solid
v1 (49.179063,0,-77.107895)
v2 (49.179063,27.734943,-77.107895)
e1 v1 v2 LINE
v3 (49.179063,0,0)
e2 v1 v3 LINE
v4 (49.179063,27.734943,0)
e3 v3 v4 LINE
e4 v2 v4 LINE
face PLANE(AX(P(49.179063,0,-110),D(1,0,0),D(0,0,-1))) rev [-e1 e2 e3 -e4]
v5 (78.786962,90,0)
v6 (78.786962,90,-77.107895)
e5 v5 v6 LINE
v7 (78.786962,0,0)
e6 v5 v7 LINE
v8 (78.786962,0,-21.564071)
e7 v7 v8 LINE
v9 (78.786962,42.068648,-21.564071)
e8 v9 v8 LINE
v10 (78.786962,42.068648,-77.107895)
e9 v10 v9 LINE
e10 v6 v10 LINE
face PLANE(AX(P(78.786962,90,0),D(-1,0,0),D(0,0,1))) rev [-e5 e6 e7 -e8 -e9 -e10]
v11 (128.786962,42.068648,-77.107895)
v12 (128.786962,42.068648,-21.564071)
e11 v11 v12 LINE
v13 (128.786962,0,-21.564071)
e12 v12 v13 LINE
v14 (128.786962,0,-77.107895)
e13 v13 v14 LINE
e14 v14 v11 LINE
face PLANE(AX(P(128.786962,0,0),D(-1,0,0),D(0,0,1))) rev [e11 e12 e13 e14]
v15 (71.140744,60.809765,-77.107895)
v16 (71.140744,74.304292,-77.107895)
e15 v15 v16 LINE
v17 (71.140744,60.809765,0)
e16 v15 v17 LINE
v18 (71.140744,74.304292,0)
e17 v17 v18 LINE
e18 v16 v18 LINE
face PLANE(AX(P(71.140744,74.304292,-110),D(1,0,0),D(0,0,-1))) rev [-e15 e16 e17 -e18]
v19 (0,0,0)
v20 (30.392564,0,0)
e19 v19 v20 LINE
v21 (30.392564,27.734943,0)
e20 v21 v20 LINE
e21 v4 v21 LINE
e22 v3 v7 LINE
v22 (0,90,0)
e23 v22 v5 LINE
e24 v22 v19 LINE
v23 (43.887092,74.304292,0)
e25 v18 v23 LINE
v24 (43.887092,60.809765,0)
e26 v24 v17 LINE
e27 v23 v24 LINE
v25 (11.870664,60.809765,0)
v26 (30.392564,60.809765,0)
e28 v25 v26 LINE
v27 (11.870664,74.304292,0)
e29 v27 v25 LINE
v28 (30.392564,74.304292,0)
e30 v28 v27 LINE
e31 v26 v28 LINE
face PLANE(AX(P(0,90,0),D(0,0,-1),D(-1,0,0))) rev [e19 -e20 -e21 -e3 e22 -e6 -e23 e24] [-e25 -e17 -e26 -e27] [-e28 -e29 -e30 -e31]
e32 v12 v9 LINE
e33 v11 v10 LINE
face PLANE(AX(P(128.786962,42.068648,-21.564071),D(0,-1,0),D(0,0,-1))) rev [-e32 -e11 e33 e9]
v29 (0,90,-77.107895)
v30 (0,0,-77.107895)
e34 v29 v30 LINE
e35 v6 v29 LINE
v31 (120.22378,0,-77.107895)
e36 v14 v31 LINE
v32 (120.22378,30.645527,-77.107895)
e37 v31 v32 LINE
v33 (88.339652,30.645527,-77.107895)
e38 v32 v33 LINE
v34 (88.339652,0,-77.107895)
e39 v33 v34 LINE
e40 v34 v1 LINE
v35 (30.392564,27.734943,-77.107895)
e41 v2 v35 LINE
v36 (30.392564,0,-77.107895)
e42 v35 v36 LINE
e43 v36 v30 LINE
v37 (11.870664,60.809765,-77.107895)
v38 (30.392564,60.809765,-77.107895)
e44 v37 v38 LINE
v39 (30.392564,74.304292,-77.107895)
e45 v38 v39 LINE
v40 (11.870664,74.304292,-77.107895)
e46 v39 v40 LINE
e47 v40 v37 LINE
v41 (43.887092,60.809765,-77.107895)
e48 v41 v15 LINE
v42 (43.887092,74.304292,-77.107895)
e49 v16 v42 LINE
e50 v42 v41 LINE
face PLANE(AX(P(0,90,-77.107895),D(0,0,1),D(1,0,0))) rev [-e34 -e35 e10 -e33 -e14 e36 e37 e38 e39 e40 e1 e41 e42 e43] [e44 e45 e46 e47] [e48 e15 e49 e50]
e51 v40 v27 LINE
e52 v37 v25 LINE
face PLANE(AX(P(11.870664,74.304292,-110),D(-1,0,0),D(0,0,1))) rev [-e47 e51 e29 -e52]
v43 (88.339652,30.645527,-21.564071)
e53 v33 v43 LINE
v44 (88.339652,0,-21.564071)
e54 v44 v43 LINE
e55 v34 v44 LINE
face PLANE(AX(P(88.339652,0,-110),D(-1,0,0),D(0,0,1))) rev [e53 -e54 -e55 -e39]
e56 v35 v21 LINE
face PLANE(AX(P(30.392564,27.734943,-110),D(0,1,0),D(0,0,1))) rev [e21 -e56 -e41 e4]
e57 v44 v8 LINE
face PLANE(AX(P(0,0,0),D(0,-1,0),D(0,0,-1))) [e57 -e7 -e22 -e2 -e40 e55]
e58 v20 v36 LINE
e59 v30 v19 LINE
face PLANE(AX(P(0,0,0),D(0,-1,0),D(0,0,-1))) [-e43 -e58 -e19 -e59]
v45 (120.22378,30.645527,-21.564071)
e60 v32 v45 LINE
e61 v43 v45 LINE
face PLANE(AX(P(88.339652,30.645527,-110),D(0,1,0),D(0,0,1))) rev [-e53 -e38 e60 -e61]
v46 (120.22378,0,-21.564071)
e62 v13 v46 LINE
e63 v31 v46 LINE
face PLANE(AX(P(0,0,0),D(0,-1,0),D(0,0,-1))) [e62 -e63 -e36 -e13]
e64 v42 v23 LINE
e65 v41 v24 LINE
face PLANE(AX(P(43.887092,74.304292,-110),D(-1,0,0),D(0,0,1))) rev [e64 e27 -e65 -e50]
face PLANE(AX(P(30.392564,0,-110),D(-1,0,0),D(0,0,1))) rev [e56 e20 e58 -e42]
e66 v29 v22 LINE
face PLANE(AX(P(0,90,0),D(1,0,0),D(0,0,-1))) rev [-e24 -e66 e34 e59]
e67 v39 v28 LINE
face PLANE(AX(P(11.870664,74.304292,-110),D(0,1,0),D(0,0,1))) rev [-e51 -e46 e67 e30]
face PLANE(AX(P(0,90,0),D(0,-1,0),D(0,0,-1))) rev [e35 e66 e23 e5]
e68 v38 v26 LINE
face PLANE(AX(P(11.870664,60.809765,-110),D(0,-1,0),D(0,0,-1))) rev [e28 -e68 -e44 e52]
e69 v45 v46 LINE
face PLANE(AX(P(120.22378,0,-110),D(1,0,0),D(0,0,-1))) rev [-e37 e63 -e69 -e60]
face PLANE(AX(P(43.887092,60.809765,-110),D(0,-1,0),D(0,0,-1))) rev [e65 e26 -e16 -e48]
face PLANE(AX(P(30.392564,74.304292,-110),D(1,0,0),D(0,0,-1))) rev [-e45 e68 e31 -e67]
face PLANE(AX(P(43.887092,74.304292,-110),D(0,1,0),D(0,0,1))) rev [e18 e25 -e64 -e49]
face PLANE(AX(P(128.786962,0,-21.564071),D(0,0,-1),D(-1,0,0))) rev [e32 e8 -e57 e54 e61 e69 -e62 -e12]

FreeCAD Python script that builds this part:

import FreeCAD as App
import Part
import Sketcher
Q = App.Units.Quantity

doc = App.newDocument("Part")
params = doc.addObject("Spreadsheet::Sheet", "Params")
for row, (alias, value) in enumerate([
    ("pad1_length", "90 mm"),
    ("pad2_length", "50 mm"),
    ("pocket1_length", "110 mm"),
], start=1):
    params.set(f"A{row}", alias)
    params.set(f"B{row}", "=" + value)
    params.setAlias(f"B{row}", alias)

body = doc.addObject("PartDesign::Body", "Body")

sketch1 = body.newObject("Sketcher::SketchObject", "Sketch")
sketch1.AttachmentSupport = (doc.getObject("XZ_Plane"), [""])
sketch1.MapMode = "FlatFace"
sketch1.addGeometry([
    Part.LineSegment(App.Vector(0, -77, 0), App.Vector(0, 0, 0)),
    Part.LineSegment(App.Vector(0, 0, 0), App.Vector(79, 0, 0)),
    Part.LineSegment(App.Vector(79, 0, 0), App.Vector(79, -77, 0)),
    Part.LineSegment(App.Vector(79, -77, 0), App.Vector(0, -77, 0)),
], False)
sketch1.addConstraint([
    Sketcher.Constraint("Coincident", 0, 2, 1, 1),
    Sketcher.Constraint("Coincident", 1, 2, 2, 1),
    Sketcher.Constraint("Coincident", 2, 2, 3, 1),
    Sketcher.Constraint("Coincident", 3, 2, 0, 1),
    Sketcher.Constraint("Vertical", 0),
    Sketcher.Constraint("Horizontal", 1),
    Sketcher.Constraint("Vertical", 2),
    Sketcher.Constraint("Horizontal", 3),
    Sketcher.Constraint("Coincident", 0, 2, -1, 1),
    Sketcher.Constraint("DistanceX", 1, 1, 1, 2, Q("78.786962 mm")),
    Sketcher.Constraint("DistanceY", 0, 1, 0, 2, Q("77.107895 mm")),
])
pad1 = body.newObject("PartDesign::Pad", "Pad")
pad1.Profile = sketch1
pad1.setExpression("Length", "Params.pad1_length")
pad1.Reversed = True

sketch2 = body.newObject("Sketcher::SketchObject", "Sketch001")
sketch2.AttachmentSupport = (doc.getObject("YZ_Plane"), [""])
sketch2.MapMode = "FlatFace"
sketch2.AttachmentOffset = App.Placement(App.Vector(0, 0, 78.786962), App.Rotation())
sketch2.addGeometry([
    Part.LineSegment(App.Vector(42, -22, 0), App.Vector(0, -22, 0)),
    Part.LineSegment(App.Vector(0, -22, 0), App.Vector(0, -77, 0)),
    Part.LineSegment(App.Vector(0, -77, 0), App.Vector(42, -77, 0)),
    Part.LineSegment(App.Vector(42, -77, 0), App.Vector(42, -22, 0)),
], False)
sketch2.addConstraint([
    Sketcher.Constraint("Coincident", 0, 2, 1, 1),
    Sketcher.Constraint("Coincident", 1, 2, 2, 1),
    Sketcher.Constraint("Coincident", 2, 2, 3, 1),
    Sketcher.Constraint("Coincident", 3, 2, 0, 1),
    Sketcher.Constraint("Horizontal", 0),
    Sketcher.Constraint("Vertical", 1),
    Sketcher.Constraint("Horizontal", 2),
    Sketcher.Constraint("Vertical", 3),
    Sketcher.Constraint("PointOnObject", 0, 2, -2),
    Sketcher.Constraint("DistanceX", 0, 2, 0, 1, Q("42.068648 mm")),
    Sketcher.Constraint("DistanceY", 1, 2, 1, 1, Q("55.543824 mm")),
    Sketcher.Constraint("DistanceY", 0, 2, -1, 1, Q("21.564071 mm")),
])
pad2 = body.newObject("PartDesign::Pad", "Pad001")
pad2.Profile = sketch2
pad2.setExpression("Length", "Params.pad2_length")

sketch3 = body.newObject("Sketcher::SketchObject", "Sketch002")
sketch3.AttachmentSupport = (doc.getObject("XY_Plane"), [""])
sketch3.MapMode = "FlatFace"
sketch3.addGeometry([
    Part.LineSegment(App.Vector(30, 28, 0), App.Vector(30, 0, 0)),
    Part.LineSegment(App.Vector(30, 0, 0), App.Vector(49, 0, 0)),
    Part.LineSegment(App.Vector(49, 0, 0), App.Vector(49, 28, 0)),
    Part.LineSegment(App.Vector(49, 28, 0), App.Vector(30, 28, 0)),
    Part.LineSegment(App.Vector(88, 31, 0), App.Vector(88, 0, 0)),
    Part.LineSegment(App.Vector(88, 0, 0), App.Vector(120, 0, 0)),
    Part.LineSegment(App.Vector(120, 0, 0), App.Vector(120, 31, 0)),
    Part.LineSegment(App.Vector(120, 31, 0), App.Vector(88, 31, 0)),
    Part.LineSegment(App.Vector(12, 74, 0), App.Vector(12, 61, 0)),
    Part.LineSegment(App.Vector(12, 61, 0), App.Vector(30, 61, 0)),
    Part.LineSegment(App.Vector(30, 61, 0), App.Vector(30, 74, 0)),
    Part.LineSegment(App.Vector(30, 74, 0), App.Vector(12, 74, 0)),
    Part.LineSegment(App.Vector(44, 74, 0), App.Vector(44, 61, 0)),
    Part.LineSegment(App.Vector(44, 61, 0), App.Vector(71, 61, 0)),
    Part.LineSegment(App.Vector(71, 61, 0), App.Vector(71, 74, 0)),
    Part.LineSegment(App.Vector(71, 74, 0), App.Vector(44, 74, 0)),
], False)
sketch3.addConstraint([
    Sketcher.Constraint("Coincident", 0, 2, 1, 1),
    Sketcher.Constraint("Coincident", 1, 2, 2, 1),
    Sketcher.Constraint("Coincident", 2, 2, 3, 1),
    Sketcher.Constraint("Coincident", 3, 2, 0, 1),
    Sketcher.Constraint("Coincident", 4, 2, 5, 1),
    Sketcher.Constraint("Coincident", 5, 2, 6, 1),
    Sketcher.Constraint("Coincident", 6, 2, 7, 1),
    Sketcher.Constraint("Coincident", 7, 2, 4, 1),
    Sketcher.Constraint("Coincident", 8, 2, 9, 1),
    Sketcher.Constraint("Coincident", 9, 2, 10, 1),
    Sketcher.Constraint("Coincident", 10, 2, 11, 1),
    Sketcher.Constraint("Coincident", 11, 2, 8, 1),
    Sketcher.Constraint("Coincident", 12, 2, 13, 1),
    Sketcher.Constraint("Coincident", 13, 2, 14, 1),
    Sketcher.Constraint("Coincident", 14, 2, 15, 1),
    Sketcher.Constraint("Coincident", 15, 2, 12, 1),
    Sketcher.Constraint("Vertical", 0),
    Sketcher.Constraint("Horizontal", 1),
    Sketcher.Constraint("Vertical", 2),
    Sketcher.Constraint("Horizontal", 3),
    Sketcher.Constraint("Vertical", 4),
    Sketcher.Constraint("Horizontal", 5),
    Sketcher.Constraint("Vertical", 6),
    Sketcher.Constraint("Horizontal", 7),
    Sketcher.Constraint("Vertical", 8),
    Sketcher.Constraint("Horizontal", 9),
    Sketcher.Constraint("Vertical", 10),
    Sketcher.Constraint("Horizontal", 11),
    Sketcher.Constraint("Vertical", 12),
    Sketcher.Constraint("Horizontal", 13),
    Sketcher.Constraint("Vertical", 14),
    Sketcher.Constraint("Horizontal", 15),
    Sketcher.Constraint("PointOnObject", 0, 2, -1),
    Sketcher.Constraint("PointOnObject", 4, 2, -1),
    Sketcher.Constraint("Horizontal", 9, 2, 12, 2),
    Sketcher.Constraint("Horizontal", 11, 2, 14, 2),
    Sketcher.Constraint("Vertical", 3, 2, 9, 2),
    Sketcher.Constraint("DistanceX", 1, 1, 1, 2, Q("18.786499 mm")),
    Sketcher.Constraint("DistanceX", 9, 1, 9, 2, Q("18.5219 mm")),
    Sketcher.Constraint("DistanceX", 5, 1, 5, 2, Q("31.884128 mm")),
    Sketcher.Constraint("DistanceX", 13, 1, 13, 2, Q("27.253653 mm")),
    Sketcher.Constraint("DistanceY", 0, 2, 0, 1, Q("27.734943 mm")),
    Sketcher.Constraint("DistanceY", 4, 2, 4, 1, Q("30.645527 mm")),
    Sketcher.Constraint("DistanceY", 8, 2, 8, 1, Q("13.494527 mm")),
    Sketcher.Constraint("DistanceX", -1, 1, 4, 2, Q("88.339652 mm")),
    Sketcher.Constraint("DistanceY", -1, 1, 10, 2, Q("74.304292 mm")),
    Sketcher.Constraint("DistanceX", -1, 1, 12, 2, Q("43.887092 mm")),
    Sketcher.Constraint("DistanceX", 1, 2, 4, 2, Q("39.160589 mm")),
])
pocket1 = body.newObject("PartDesign::Pocket", "Pocket")
pocket1.Profile = sketch3
pocket1.setExpression("Length", "Params.pocket1_length")

doc.recompute()
